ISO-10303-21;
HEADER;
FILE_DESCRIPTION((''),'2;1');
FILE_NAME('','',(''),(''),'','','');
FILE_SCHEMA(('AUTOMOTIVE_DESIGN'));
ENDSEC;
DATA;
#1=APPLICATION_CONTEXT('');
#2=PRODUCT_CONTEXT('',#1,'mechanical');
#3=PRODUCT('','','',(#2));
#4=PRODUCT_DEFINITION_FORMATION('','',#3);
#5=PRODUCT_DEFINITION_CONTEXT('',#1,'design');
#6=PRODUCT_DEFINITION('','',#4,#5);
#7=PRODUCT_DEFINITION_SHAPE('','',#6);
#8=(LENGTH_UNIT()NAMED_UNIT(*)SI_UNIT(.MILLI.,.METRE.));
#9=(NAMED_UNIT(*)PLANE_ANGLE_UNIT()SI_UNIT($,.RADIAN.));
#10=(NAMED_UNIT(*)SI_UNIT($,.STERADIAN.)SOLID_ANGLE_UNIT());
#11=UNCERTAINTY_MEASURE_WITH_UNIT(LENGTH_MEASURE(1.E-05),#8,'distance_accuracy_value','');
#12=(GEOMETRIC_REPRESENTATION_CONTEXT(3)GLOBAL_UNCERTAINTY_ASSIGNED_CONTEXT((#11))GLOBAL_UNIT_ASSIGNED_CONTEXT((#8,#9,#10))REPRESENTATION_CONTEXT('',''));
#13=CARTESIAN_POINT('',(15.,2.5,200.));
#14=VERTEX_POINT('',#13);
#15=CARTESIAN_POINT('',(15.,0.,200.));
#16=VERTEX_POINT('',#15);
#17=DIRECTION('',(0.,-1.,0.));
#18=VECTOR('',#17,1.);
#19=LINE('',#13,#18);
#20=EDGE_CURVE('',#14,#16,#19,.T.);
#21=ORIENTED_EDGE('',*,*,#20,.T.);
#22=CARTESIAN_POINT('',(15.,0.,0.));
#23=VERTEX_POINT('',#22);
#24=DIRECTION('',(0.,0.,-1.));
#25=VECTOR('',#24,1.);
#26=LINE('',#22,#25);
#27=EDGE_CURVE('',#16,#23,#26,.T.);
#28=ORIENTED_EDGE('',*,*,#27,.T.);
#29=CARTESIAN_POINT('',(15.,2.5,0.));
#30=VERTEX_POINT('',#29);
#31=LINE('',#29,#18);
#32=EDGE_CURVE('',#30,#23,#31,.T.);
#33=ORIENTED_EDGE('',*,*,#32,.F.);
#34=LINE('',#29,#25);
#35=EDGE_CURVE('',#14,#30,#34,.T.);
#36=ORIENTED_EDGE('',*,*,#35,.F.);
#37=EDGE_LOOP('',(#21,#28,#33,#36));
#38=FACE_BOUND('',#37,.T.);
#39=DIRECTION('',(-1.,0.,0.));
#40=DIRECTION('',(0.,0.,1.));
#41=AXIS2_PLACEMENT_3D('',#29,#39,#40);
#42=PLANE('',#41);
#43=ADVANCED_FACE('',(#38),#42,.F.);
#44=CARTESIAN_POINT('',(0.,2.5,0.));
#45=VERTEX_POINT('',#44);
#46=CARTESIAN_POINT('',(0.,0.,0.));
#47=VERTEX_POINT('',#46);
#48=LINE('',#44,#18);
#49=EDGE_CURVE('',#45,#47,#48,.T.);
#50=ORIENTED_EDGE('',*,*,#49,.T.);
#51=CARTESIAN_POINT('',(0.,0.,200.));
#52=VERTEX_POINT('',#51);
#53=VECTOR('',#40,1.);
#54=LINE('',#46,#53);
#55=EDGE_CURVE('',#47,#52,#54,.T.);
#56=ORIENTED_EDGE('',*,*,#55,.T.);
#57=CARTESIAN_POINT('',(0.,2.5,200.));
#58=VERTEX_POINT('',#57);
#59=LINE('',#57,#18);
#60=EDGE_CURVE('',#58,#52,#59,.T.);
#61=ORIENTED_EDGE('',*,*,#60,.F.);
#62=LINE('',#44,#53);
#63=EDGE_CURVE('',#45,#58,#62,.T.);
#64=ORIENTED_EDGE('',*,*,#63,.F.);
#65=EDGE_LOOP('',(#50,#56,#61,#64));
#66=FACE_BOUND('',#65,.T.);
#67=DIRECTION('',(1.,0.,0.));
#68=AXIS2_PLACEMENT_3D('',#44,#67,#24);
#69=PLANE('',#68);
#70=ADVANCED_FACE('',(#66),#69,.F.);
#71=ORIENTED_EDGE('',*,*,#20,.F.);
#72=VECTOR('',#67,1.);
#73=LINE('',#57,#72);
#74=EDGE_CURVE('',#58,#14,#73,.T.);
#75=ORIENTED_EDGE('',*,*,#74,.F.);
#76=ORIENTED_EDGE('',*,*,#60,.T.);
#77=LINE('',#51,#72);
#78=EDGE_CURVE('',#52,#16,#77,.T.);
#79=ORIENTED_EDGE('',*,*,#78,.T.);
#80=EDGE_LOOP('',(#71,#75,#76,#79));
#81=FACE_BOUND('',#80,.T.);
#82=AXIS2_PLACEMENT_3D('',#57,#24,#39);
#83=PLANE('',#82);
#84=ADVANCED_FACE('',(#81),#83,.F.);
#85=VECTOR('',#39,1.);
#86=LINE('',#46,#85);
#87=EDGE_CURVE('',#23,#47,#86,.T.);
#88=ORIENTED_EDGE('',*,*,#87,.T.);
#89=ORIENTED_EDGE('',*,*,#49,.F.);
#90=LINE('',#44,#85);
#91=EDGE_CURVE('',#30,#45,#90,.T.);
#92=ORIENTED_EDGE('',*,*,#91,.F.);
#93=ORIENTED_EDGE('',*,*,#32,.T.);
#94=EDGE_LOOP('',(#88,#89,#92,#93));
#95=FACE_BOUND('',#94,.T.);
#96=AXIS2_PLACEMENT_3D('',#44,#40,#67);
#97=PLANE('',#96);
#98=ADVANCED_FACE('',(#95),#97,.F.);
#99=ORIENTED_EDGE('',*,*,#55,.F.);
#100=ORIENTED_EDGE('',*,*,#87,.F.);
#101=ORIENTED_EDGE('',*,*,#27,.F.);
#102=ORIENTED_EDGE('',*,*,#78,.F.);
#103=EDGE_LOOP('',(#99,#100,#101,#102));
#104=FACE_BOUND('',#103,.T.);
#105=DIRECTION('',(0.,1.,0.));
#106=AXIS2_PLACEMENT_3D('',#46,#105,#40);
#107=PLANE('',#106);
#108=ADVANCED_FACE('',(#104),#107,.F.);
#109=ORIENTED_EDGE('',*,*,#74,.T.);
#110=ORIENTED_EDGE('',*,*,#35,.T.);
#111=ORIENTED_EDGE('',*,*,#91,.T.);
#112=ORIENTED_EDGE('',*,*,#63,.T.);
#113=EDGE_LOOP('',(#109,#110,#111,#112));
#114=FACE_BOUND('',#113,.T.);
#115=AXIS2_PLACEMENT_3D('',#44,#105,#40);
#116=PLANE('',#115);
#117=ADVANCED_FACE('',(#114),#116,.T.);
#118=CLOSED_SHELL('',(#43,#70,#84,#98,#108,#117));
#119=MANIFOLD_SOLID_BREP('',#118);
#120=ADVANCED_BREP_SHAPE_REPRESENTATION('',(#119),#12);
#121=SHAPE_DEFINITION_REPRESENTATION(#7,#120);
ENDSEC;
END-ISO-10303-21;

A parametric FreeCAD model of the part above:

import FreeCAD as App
import Part
import Sketcher

doc = App.newDocument("Part")
params = doc.addObject("Spreadsheet::Sheet", "Params")
for row, (alias, value) in enumerate([
    ("sketch1_width", "15 mm"),
    ("sketch1_height", "200 mm"),
    ("pad1_length", "2.5 mm"),
], start=1):
    params.set(f"A{row}", alias)
    params.set(f"B{row}", "=" + value)
    params.setAlias(f"B{row}", alias)

body = doc.addObject("PartDesign::Body", "Body")

sketch1 = body.newObject("Sketcher::SketchObject", "Sketch")
sketch1.AttachmentSupport = (doc.getObject("XZ_Plane"), [""])
sketch1.MapMode = "FlatFace"
sketch1.addGeometry([
    Part.LineSegment(App.Vector(0, 0, 0), App.Vector(0, 200, 0)),
    Part.LineSegment(App.Vector(0, 200, 0), App.Vector(15, 200, 0)),
    Part.LineSegment(App.Vector(15, 200, 0), App.Vector(15, 0, 0)),
    Part.LineSegment(App.Vector(15, 0, 0), App.Vector(0, 0, 0)),
], False)
sketch1.addConstraint([
    Sketcher.Constraint("Coincident", 0, 2, 1, 1),
    Sketcher.Constraint("Coincident", 1, 2, 2, 1),
    Sketcher.Constraint("Coincident", 2, 2, 3, 1),
    Sketcher.Constraint("Coincident", 3, 2, 0, 1),
    Sketcher.Constraint("Vertical", 0),
    Sketcher.Constraint("Horizontal", 1),
    Sketcher.Constraint("Vertical", 2),
    Sketcher.Constraint("Horizontal", 3),
    Sketcher.Constraint("Coincident", 3, 2, -1, 1),
    Sketcher.Constraint("DistanceX", 1, 1, 1, 2, 15.0),
    Sketcher.Constraint("DistanceY", 0, 1, 0, 2, 200.0),
])
sketch1.setExpression("Constraints[9]", "Params.sketch1_width")
sketch1.setExpression("Constraints[10]", "Params.sketch1_height")
pad1 = body.newObject("PartDesign::Pad", "Pad")
pad1.Profile = sketch1
pad1.setExpression("Length", "Params.pad1_length")
pad1.Reversed = True

doc.recompute()
